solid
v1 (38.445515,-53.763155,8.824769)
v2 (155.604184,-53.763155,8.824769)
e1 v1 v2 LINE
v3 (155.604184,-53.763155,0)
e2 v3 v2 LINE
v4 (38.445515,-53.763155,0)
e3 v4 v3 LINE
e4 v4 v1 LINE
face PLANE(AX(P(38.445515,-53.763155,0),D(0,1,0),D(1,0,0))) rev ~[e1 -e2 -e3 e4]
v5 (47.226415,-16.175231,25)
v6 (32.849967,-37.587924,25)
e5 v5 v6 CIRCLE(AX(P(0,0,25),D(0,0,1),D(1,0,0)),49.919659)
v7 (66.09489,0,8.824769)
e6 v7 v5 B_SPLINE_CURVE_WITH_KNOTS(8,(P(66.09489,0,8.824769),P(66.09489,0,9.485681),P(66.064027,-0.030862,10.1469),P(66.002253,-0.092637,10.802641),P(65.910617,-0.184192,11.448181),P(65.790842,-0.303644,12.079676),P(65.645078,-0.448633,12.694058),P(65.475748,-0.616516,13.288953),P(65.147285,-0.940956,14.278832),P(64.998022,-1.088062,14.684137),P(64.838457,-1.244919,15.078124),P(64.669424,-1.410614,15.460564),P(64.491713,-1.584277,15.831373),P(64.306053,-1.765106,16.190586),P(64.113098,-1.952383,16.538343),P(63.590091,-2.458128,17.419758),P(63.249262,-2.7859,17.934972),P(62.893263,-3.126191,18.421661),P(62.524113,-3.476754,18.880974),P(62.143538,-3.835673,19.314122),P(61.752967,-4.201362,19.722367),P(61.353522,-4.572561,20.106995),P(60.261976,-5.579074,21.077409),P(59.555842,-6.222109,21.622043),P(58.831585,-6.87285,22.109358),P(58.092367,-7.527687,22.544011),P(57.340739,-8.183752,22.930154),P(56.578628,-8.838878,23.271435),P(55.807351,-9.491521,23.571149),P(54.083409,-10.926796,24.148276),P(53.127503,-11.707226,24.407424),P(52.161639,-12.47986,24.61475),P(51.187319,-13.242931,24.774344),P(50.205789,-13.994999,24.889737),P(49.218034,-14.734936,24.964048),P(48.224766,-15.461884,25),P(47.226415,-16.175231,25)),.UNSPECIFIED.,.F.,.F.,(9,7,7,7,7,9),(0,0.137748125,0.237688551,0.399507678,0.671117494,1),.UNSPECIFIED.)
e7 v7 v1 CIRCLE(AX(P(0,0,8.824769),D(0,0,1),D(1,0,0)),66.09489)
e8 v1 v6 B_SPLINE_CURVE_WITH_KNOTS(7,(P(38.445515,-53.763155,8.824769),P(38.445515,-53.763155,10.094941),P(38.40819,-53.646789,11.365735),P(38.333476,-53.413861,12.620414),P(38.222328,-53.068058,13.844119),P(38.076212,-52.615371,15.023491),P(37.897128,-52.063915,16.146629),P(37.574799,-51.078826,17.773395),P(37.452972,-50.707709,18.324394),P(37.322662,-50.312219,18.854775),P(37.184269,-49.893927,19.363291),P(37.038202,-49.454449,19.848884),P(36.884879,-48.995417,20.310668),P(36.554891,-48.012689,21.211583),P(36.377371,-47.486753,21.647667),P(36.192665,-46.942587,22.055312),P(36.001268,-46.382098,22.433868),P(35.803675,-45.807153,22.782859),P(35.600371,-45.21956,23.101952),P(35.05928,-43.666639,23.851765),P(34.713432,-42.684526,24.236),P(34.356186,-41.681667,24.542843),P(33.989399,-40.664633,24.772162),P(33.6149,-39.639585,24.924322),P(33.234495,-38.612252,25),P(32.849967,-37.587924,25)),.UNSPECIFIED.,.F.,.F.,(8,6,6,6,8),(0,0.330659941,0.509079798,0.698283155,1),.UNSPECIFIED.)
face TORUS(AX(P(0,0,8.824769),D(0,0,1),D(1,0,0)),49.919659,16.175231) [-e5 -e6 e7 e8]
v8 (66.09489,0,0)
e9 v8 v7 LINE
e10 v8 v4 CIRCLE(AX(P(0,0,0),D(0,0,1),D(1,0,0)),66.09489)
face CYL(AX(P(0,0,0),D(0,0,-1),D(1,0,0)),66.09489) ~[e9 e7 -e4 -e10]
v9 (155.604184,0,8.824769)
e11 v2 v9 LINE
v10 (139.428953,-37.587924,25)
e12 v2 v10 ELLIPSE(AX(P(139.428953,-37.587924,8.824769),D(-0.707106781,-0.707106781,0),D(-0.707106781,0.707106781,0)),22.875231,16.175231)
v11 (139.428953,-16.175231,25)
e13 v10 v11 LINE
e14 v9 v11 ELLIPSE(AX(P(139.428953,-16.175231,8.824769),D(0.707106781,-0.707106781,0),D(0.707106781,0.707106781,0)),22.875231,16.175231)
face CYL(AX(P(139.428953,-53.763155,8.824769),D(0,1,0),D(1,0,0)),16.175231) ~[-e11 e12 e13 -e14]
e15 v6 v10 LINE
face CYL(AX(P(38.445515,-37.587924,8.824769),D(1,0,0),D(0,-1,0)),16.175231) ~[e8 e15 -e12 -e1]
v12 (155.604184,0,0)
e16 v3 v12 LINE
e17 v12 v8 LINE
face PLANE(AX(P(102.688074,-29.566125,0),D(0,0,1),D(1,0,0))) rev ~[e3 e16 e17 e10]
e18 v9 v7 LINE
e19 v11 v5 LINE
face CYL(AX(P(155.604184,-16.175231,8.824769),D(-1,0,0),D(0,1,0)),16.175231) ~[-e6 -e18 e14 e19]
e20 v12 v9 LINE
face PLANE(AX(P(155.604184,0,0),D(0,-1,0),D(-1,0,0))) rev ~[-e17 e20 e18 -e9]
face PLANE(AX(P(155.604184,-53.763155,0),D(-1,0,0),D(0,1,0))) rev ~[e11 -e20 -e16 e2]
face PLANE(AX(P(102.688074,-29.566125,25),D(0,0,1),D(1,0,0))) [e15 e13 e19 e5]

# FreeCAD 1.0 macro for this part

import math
import FreeCAD as App
import Part
import Sketcher

V = App.Vector
Q = App.Units.Quantity


def edges_at(feature, points):
    """Names of the edges that pass closest to the given points."""
    edges = feature.Shape.Edges
    near = lambda p: min(range(len(edges)), key=lambda i: edges[i].distToShape(Part.Vertex(*p))[0])
    return sorted({f"Edge{near(p) + 1}" for p in points})

doc = App.newDocument("Part")
body = doc.addObject("PartDesign::Body", "Body")

# Sketch on XY plane
sketch1 = doc.addObject("Sketcher::SketchObject", "Sketch")
body.addObject(sketch1)
sketch1.AttachmentSupport = (doc.XY_Plane, [""])
sketch1.MapMode = "FlatFace"
sketch1.addGeometry(Part.LineSegment(V(155.604184, 0, 0), V(66.09489, 0, 0)), False)
sketch1.addGeometry(Part.ArcOfCircle(Part.Circle(V(0, 0, 0), V(0, 0, 1), 66.09489), math.radians(0), math.radians(305.568195)), False)
sketch1.addGeometry(Part.LineSegment(V(38.445515, -53.763155, 0), V(155.604184, -53.763155, 0)), False)
sketch1.addGeometry(Part.LineSegment(V(155.604184, -53.763155, 0), V(155.604184, 0, 0)), False)
sketch1.addConstraint(Sketcher.Constraint("Coincident", 0, 2, 1, 1))
sketch1.addConstraint(Sketcher.Constraint("Coincident", 1, 2, 2, 1))
sketch1.addConstraint(Sketcher.Constraint("Coincident", 2, 2, 3, 1))
sketch1.addConstraint(Sketcher.Constraint("Coincident", 3, 2, 0, 1))
sketch1.addConstraint(Sketcher.Constraint("Horizontal", 0))
sketch1.addConstraint(Sketcher.Constraint("Horizontal", 2))
sketch1.addConstraint(Sketcher.Constraint("Vertical", 3))
sketch1.addConstraint(Sketcher.Constraint("Coincident", 1, 3, -1, 1))
sketch1.addConstraint(Sketcher.Constraint("PointOnObject", 0, 2, -1))
sketch1.addConstraint(Sketcher.Constraint("Radius", 1, Q("66.09489 mm")))
sketch1.addConstraint(Sketcher.Constraint("DistanceX", 2, 1, 2, 2, Q("117.158669 mm")))
sketch1.addConstraint(Sketcher.Constraint("DistanceX", 0, 2, 0, 1, Q("89.509294 mm")))
pad1 = doc.addObject("PartDesign::Pad", "Pad")
body.addObject(pad1)
pad1.Profile = sketch1
pad1.Length = 25
doc.recompute()

fillet = doc.addObject("PartDesign::Fillet", "Fillet")
body.addObject(fillet)
fillet.Base = (pad1, edges_at(pad1, [
    (-58.777, 30.228, 25),
    (155.604, -26.882, 25),
    (110.85, 0, 25),
    (97.025, -53.763, 25),
]))
fillet.Radius = 16.175231

doc.recompute()
